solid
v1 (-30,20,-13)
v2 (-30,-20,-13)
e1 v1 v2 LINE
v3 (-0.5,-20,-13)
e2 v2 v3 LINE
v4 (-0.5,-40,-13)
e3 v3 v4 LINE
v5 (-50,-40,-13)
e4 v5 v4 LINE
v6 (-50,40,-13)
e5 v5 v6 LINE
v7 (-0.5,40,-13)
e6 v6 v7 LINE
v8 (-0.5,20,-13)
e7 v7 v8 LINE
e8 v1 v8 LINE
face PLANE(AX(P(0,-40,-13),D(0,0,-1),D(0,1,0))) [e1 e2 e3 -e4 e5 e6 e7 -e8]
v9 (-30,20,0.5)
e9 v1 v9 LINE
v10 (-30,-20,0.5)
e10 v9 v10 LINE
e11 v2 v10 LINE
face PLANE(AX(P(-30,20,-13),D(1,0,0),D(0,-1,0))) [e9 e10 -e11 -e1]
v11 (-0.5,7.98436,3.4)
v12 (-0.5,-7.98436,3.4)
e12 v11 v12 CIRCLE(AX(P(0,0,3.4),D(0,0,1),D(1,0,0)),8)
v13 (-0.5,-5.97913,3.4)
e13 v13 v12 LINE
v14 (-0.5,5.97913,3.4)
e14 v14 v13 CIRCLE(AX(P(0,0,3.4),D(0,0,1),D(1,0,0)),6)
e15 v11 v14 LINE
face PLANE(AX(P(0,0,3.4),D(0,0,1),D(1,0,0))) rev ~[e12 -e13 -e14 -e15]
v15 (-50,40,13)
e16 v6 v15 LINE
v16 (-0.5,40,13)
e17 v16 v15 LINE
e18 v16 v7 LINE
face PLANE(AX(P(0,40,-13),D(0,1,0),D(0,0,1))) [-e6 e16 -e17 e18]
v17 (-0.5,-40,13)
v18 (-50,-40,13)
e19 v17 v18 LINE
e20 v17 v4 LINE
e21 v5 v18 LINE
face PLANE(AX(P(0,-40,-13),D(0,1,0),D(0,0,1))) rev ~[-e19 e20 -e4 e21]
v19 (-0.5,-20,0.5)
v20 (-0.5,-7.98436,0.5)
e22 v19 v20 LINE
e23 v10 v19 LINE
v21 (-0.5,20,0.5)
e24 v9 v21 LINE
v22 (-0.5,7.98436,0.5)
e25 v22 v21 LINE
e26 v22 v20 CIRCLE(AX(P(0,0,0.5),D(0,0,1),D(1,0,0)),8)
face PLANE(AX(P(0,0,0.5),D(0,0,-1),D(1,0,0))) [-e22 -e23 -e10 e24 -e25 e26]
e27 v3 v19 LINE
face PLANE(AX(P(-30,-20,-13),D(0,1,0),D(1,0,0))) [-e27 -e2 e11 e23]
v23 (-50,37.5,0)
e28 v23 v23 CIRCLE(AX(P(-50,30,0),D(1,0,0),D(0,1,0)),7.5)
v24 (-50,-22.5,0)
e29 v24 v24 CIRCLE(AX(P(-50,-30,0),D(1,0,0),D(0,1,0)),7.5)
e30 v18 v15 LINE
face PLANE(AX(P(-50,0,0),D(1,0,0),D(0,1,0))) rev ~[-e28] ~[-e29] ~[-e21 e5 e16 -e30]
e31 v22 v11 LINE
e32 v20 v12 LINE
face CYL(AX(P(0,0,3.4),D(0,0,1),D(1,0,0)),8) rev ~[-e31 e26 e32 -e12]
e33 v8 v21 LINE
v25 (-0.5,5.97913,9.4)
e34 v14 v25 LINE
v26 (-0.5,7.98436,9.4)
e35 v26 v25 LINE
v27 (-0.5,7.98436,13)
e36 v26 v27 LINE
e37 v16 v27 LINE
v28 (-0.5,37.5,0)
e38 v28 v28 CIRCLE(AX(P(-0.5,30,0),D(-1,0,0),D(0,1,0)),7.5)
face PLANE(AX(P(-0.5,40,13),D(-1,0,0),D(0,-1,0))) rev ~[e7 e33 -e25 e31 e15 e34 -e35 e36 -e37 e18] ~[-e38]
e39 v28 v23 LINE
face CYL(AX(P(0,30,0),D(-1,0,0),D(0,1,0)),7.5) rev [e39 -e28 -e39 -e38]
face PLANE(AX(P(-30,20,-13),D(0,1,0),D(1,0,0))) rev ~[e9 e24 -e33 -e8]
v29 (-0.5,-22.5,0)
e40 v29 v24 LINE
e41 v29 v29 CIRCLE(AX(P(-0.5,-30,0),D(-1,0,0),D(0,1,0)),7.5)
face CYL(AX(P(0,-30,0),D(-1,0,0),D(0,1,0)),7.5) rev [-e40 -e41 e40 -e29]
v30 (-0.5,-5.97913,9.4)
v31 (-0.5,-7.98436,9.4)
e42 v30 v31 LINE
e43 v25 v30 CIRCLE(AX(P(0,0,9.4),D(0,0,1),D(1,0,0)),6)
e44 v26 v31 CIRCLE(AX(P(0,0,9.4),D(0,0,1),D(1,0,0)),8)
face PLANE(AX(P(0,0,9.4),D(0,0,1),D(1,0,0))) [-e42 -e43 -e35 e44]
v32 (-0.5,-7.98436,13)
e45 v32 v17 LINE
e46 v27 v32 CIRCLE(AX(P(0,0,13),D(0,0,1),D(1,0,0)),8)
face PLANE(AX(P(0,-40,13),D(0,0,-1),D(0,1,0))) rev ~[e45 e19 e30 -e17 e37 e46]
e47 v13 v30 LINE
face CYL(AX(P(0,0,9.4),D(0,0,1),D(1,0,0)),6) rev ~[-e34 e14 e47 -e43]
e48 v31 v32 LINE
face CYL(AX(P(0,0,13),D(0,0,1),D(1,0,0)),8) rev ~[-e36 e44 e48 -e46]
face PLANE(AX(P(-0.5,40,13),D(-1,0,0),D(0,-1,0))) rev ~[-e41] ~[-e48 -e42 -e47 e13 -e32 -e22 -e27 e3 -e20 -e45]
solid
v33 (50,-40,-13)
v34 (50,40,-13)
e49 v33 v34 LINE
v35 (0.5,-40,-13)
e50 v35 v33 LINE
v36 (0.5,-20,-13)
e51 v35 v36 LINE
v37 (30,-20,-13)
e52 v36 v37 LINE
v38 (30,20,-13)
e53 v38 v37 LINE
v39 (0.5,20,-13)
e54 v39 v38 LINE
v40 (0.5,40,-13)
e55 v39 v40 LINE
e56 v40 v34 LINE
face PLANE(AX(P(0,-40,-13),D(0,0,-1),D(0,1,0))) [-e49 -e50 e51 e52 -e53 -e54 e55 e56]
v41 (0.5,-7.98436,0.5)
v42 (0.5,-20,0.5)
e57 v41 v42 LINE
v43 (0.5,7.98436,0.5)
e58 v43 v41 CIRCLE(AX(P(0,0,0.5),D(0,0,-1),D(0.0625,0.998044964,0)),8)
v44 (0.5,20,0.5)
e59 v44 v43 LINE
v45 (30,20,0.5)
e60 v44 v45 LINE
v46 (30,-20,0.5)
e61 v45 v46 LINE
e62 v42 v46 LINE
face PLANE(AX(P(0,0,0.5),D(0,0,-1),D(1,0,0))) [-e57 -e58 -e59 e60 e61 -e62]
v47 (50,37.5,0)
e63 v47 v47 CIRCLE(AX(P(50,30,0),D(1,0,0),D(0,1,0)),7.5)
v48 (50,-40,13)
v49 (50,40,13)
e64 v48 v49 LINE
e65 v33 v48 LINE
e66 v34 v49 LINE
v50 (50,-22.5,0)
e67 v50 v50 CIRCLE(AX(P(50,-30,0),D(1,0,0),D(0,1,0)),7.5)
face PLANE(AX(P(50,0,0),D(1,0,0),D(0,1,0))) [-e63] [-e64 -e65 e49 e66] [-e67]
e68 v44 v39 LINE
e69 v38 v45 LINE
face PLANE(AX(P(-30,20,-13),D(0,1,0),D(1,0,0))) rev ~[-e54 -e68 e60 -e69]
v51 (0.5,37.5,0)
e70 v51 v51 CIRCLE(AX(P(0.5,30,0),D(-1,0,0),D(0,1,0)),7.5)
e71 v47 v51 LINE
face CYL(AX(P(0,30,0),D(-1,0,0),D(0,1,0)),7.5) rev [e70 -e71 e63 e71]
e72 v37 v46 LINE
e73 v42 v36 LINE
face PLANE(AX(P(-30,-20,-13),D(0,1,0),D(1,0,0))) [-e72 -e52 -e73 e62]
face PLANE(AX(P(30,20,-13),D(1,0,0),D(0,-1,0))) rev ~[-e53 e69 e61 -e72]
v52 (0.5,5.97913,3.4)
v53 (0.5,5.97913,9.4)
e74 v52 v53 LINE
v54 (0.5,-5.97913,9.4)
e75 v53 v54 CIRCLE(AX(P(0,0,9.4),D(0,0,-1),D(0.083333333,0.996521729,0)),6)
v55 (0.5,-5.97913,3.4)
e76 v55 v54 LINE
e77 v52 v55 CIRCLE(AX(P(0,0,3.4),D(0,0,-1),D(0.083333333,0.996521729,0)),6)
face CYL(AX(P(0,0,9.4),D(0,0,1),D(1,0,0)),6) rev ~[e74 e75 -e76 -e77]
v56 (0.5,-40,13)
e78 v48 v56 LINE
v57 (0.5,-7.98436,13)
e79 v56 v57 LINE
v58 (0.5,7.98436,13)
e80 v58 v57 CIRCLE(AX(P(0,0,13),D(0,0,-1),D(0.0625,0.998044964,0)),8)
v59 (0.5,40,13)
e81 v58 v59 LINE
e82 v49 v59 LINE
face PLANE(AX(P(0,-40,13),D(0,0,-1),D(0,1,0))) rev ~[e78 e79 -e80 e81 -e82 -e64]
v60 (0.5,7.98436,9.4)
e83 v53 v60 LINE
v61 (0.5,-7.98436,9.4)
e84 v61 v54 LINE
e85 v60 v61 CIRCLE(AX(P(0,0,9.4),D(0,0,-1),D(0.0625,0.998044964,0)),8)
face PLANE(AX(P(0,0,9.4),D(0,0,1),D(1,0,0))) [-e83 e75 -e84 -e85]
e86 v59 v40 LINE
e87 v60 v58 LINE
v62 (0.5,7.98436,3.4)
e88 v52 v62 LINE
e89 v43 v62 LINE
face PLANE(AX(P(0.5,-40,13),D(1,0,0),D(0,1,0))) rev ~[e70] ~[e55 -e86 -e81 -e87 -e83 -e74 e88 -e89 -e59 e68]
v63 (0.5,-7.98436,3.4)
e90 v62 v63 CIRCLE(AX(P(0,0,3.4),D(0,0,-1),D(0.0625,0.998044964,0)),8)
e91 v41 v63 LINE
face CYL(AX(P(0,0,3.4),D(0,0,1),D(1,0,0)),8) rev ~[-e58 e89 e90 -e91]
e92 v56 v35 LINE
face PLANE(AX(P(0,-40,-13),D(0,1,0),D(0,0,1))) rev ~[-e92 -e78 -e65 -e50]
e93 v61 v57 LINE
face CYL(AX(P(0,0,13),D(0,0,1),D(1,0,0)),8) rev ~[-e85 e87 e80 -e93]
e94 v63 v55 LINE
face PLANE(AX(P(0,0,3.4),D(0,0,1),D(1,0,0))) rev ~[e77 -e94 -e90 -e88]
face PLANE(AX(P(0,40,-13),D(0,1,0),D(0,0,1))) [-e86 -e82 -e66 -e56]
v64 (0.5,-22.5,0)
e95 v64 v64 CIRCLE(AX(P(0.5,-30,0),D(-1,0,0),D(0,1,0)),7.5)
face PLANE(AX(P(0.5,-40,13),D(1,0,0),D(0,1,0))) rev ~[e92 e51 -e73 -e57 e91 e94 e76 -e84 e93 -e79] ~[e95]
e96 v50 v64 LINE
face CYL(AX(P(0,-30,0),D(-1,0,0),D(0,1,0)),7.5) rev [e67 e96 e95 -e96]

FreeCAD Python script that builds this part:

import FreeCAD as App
import Part
import Sketcher

V = App.Vector

doc = App.newDocument("Part")
body = doc.addObject("PartDesign::Body", "Body")
body.AllowCompound = True

sketch1 = body.newObject("Sketcher::SketchObject", "Sketch")
sketch1.AttachmentSupport = (doc.getObject("YZ_Plane"), [""])
sketch1.MapMode = "FlatFace"
sketch1.addGeometry(Part.LineSegment(V(-40, 13, 0), V(-40, -13, 0)), False)
sketch1.addGeometry(Part.LineSegment(V(-40, -13, 0), V(40, -13, 0)), False)
sketch1.addGeometry(Part.LineSegment(V(40, -13, 0), V(40, 13, 0)), False)
sketch1.addGeometry(Part.LineSegment(V(40, 13, 0), V(-40, 13, 0)), False)
sketch1.addGeometry(Part.Circle(V(-30, 0, 0), V(0, 0, 1), 8), False)
sketch1.addGeometry(Part.Circle(V(30, 0, 0), V(0, 0, 1), 8), False)
sketch1.addConstraint(Sketcher.Constraint("Coincident", 0, 2, 1, 1))
sketch1.addConstraint(Sketcher.Constraint("Coincident", 1, 2, 2, 1))
sketch1.addConstraint(Sketcher.Constraint("Coincident", 2, 2, 3, 1))
sketch1.addConstraint(Sketcher.Constraint("Coincident", 3, 2, 0, 1))
sketch1.addConstraint(Sketcher.Constraint("Vertical", 0))
sketch1.addConstraint(Sketcher.Constraint("Horizontal", 1))
sketch1.addConstraint(Sketcher.Constraint("Vertical", 2))
sketch1.addConstraint(Sketcher.Constraint("Horizontal", 3))
sketch1.addConstraint(Sketcher.Constraint("Equal", 4, 5))
sketch1.addConstraint(Sketcher.Constraint("Symmetric", 4, 3, 5, 3, -1, 1))
sketch1.addConstraint(Sketcher.Constraint("Symmetric", 0, 2, 2, 2, -1, 1))
sketch1.addConstraint(Sketcher.Constraint("PointOnObject", 4, 3, -1))
sketch1.addConstraint(Sketcher.Constraint("Diameter", 4, 15.0))
sketch1.addConstraint(Sketcher.Constraint("DistanceX", 1, 1, 1, 2, 80.0))
sketch1.addConstraint(Sketcher.Constraint("DistanceY", 0, 2, 0, 1, 26.0))
sketch1.addConstraint(Sketcher.Constraint("DistanceX", 4, 3, -1, 1, 30.0))
pad1 = body.newObject("PartDesign::Pad", "Pad")
pad1.Profile = sketch1
pad1.Length = 100
pad1.Midplane = True

sketch2 = body.newObject("Sketcher::SketchObject", "Sketch001")
sketch2.AttachmentSupport = (doc.getObject("XY_Plane"), [""])
sketch2.MapMode = "FlatFace"
sketch2.AttachmentOffset = App.Placement(V(0, 0, 13), App.Rotation())
sketch2.addGeometry(Part.Circle(V(0, 0, 0), V(0, 0, 1), 8), False)
sketch2.addConstraint(Sketcher.Constraint("Coincident", 0, 3, -1, 1))
sketch2.addConstraint(Sketcher.Constraint("Diameter", 0, 16.0))
pocket1 = body.newObject("PartDesign::Pocket", "Pocket")
pocket1.Profile = sketch2
pocket1.Length = 3.6

sketch3 = body.newObject("Sketcher::SketchObject", "Sketch002")
sketch3.AttachmentSupport = (doc.getObject("XY_Plane"), [""])
sketch3.MapMode = "FlatFace"
sketch3.AttachmentOffset = App.Placement(V(0, 0, 9.4), App.Rotation())
sketch3.addGeometry(Part.Circle(V(0, 0, 0), V(0, 0, 1), 6), False)
sketch3.addConstraint(Sketcher.Constraint("Coincident", 0, 3, -1, 1))
sketch3.addConstraint(Sketcher.Constraint("Diameter", 0, 12.0))
pocket2 = body.newObject("PartDesign::Pocket", "Pocket001")
pocket2.Profile = sketch3
pocket2.Length = 6

sketch4 = body.newObject("Sketcher::SketchObject", "Sketch003")
sketch4.AttachmentSupport = (doc.getObject("XY_Plane"), [""])
sketch4.MapMode = "FlatFace"
sketch4.AttachmentOffset = App.Placement(V(0, 0, 3.4), App.Rotation())
sketch4.addGeometry(Part.Circle(V(0, 0, 0), V(0, 0, 1), 8), False)
sketch4.addConstraint(Sketcher.Constraint("Coincident", 0, 3, -1, 1))
sketch4.addConstraint(Sketcher.Constraint("Diameter", 0, 16.0))
pocket3 = body.newObject("PartDesign::Pocket", "Pocket002")
pocket3.Profile = sketch4
pocket3.Length = 2.9

sketch5 = body.newObject("Sketcher::SketchObject", "Sketch004")
sketch5.AttachmentSupport = (doc.getObject("XY_Plane"), [""])
sketch5.MapMode = "FlatFace"
sketch5.AttachmentOffset = App.Placement(V(0, 0, -13), App.Rotation())
sketch5.addGeometry(Part.LineSegment(V(-30, -20, 0), V(-30, 20, 0)), False)
sketch5.addGeometry(Part.LineSegment(V(-30, 20, 0), V(30, 20, 0)), False)
sketch5.addGeometry(Part.LineSegment(V(30, 20, 0), V(30, -20, 0)), False)
sketch5.addGeometry(Part.LineSegment(V(30, -20, 0), V(-30, -20, 0)), False)
sketch5.addConstraint(Sketcher.Constraint("Coincident", 0, 2, 1, 1))
sketch5.addConstraint(Sketcher.Constraint("Coincident", 1, 2, 2, 1))
sketch5.addConstraint(Sketcher.Constraint("Coincident", 2, 2, 3, 1))
sketch5.addConstraint(Sketcher.Constraint("Coincident", 3, 2, 0, 1))
sketch5.addConstraint(Sketcher.Constraint("Vertical", 0))
sketch5.addConstraint(Sketcher.Constraint("Horizontal", 1))
sketch5.addConstraint(Sketcher.Constraint("Vertical", 2))
sketch5.addConstraint(Sketcher.Constraint("Horizontal", 3))
sketch5.addConstraint(Sketcher.Constraint("Symmetric", 0, 2, 2, 2, -1, 1))
sketch5.addConstraint(Sketcher.Constraint("DistanceX", 1, 1, 1, 2, 60.0))
sketch5.addConstraint(Sketcher.Constraint("DistanceY", 0, 1, 0, 2, 40.0))
pocket4 = body.newObject("PartDesign::Pocket", "Pocket003")
pocket4.Profile = sketch5
pocket4.Length = 13.5
pocket4.Reversed = True

sketch6 = body.newObject("Sketcher::SketchObject", "Sketch005")
sketch6.AttachmentSupport = (doc.getObject("XY_Plane"), [""])
sketch6.MapMode = "FlatFace"
sketch6.AttachmentOffset = App.Placement(V(0, 0, 13), App.Rotation())
sketch6.addGeometry(Part.LineSegment(V(-0.5, -40, 0), V(0.5, -40, 0)), False)
sketch6.addGeometry(Part.LineSegment(V(0.5, -40, 0), V(0.5, 40, 0)), False)
sketch6.addGeometry(Part.LineSegment(V(0.5, 40, 0), V(-0.5, 40, 0)), False)
sketch6.addGeometry(Part.LineSegment(V(-0.5, 40, 0), V(-0.5, -40, 0)), False)
sketch6.addConstraint(Sketcher.Constraint("Coincident", 0, 2, 1, 1))
sketch6.addConstraint(Sketcher.Constraint("Coincident", 1, 2, 2, 1))
sketch6.addConstraint(Sketcher.Constraint("Coincident", 2, 2, 3, 1))
sketch6.addConstraint(Sketcher.Constraint("Coincident", 3, 2, 0, 1))
sketch6.addConstraint(Sketcher.Constraint("Horizontal", 0))
sketch6.addConstraint(Sketcher.Constraint("Vertical", 1))
sketch6.addConstraint(Sketcher.Constraint("Horizontal", 2))
sketch6.addConstraint(Sketcher.Constraint("Vertical", 3))
sketch6.addConstraint(Sketcher.Constraint("Symmetric", 0, 2, 2, 2, -1, 1))
sketch6.addConstraint(Sketcher.Constraint("DistanceX", 0, 1, 0, 2, 1.0))
sketch6.addConstraint(Sketcher.Constraint("DistanceY", 1, 1, 1, 2, 80.0))
pocket5 = body.newObject("PartDesign::Pocket", "Pocket004")
pocket5.Profile = sketch6
pocket5.Type = "ThroughAll"

doc.recompute()
